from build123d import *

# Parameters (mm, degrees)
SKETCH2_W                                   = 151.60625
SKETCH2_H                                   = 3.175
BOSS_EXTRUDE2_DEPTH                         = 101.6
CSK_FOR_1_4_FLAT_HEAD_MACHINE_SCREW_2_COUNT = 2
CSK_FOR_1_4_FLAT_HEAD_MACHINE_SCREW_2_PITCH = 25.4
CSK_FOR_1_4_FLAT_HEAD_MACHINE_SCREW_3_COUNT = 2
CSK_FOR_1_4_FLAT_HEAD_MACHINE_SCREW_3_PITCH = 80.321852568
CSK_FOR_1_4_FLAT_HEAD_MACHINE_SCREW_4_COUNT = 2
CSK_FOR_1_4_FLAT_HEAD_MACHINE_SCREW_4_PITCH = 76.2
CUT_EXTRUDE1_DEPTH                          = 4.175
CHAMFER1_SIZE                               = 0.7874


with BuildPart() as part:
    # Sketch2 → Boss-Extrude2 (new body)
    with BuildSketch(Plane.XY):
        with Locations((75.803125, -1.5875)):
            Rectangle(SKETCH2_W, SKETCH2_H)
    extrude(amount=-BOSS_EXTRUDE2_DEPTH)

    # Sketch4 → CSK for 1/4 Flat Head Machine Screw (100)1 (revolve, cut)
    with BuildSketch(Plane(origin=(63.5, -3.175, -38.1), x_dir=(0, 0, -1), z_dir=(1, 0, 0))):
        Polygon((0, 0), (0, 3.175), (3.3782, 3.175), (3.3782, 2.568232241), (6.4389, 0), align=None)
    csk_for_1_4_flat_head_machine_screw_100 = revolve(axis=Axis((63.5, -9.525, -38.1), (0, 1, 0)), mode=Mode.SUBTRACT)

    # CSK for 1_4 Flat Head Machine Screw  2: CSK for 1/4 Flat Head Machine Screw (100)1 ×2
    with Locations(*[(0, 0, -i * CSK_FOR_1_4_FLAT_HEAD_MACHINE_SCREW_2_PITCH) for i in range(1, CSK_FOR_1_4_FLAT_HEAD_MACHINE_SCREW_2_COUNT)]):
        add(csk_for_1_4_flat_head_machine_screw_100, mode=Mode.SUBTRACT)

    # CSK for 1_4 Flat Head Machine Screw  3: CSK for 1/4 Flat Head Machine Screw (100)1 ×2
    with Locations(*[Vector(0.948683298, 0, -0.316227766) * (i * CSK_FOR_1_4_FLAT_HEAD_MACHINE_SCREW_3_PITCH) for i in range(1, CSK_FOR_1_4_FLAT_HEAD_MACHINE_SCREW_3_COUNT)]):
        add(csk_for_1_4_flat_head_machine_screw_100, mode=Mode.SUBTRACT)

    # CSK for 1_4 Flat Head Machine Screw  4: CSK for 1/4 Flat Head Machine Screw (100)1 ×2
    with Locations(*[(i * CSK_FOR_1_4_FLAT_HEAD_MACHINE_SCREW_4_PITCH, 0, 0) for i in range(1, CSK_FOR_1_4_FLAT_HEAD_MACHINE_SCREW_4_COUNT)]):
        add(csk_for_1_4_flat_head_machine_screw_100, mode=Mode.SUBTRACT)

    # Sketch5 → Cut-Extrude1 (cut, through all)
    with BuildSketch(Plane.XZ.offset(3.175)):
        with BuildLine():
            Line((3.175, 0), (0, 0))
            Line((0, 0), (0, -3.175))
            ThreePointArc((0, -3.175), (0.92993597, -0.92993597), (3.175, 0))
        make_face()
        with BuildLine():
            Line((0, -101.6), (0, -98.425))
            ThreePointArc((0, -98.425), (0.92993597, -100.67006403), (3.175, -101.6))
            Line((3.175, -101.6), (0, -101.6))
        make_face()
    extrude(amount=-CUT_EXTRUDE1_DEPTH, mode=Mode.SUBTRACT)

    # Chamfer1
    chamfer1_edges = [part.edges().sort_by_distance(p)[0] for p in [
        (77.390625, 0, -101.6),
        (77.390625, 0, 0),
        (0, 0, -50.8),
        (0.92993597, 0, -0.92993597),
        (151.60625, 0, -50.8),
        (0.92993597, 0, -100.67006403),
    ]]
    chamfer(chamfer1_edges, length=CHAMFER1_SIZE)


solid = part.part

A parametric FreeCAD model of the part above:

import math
import FreeCAD as App
import Part
import Sketcher
Q = App.Units.Quantity


def edges_at(feature, points):
    """Names of the edges that pass closest to the given points."""
    edges = feature.Shape.Edges
    near = lambda p: min(range(len(edges)), key=lambda i: edges[i].distToShape(Part.Vertex(*p))[0])
    return sorted({f"Edge{near(p) + 1}" for p in points})

doc = App.newDocument("Part")
params = doc.addObject("Spreadsheet::Sheet", "Params")
for row, (alias, value) in enumerate([
    ("sketch1_width", "5.96875 in"),
    ("sketch1_height", "0.125 in"),
    ("pad1_length", "4 in"),
    ("sketch2_width", "0.125 in"),
    ("sketch2_height", "0.133 in"),
    ("groove_angle", "360 deg"),
    ("linearpattern_pitch", "1 in"),
    ("linearpattern2_pitch", "80.321853 mm"),
    ("linearpattern3_pitch", "3 in"),
    ("sketch3_radius", "0.125 in"),
    ("chamfer_size", "0.031 in"),
], start=1):
    params.set(f"A{row}", alias)
    params.set(f"B{row}", "=" + value)
    params.setAlias(f"B{row}", alias)

body = doc.addObject("PartDesign::Body", "Body")

sketch1 = doc.addObject("Sketcher::SketchObject", "Sketch")
body.addObject(sketch1)
sketch1.AttachmentSupport = (doc.XY_Plane, [""])
sketch1.MapMode = "FlatFace"
sketch1.addGeometry([
    Part.LineSegment(App.Vector(0, 0, 0), App.Vector(0, -3.2, 0)),
    Part.LineSegment(App.Vector(0, -3.2, 0), App.Vector(151.6, -3.2, 0)),
    Part.LineSegment(App.Vector(151.6, -3.2, 0), App.Vector(151.6, 0, 0)),
    Part.LineSegment(App.Vector(151.6, 0, 0), App.Vector(0, 0, 0)),
], False)
sketch1.addConstraint([
    Sketcher.Constraint("Coincident", 0, 2, 1, 1),
    Sketcher.Constraint("Coincident", 1, 2, 2, 1),
    Sketcher.Constraint("Coincident", 2, 2, 3, 1),
    Sketcher.Constraint("Coincident", 3, 2, 0, 1),
    Sketcher.Constraint("Vertical", 0),
    Sketcher.Constraint("Horizontal", 1),
    Sketcher.Constraint("Vertical", 2),
    Sketcher.Constraint("Horizontal", 3),
    Sketcher.Constraint("Coincident", 3, 2, -1, 1),
    Sketcher.Constraint("DistanceX", 1, 1, 1, 2, Q("5.96875 in")),
    Sketcher.Constraint("DistanceY", 0, 2, 0, 1, Q("0.125 in")),
])
sketch1.setExpression("Constraints[9]", "Params.sketch1_width")
sketch1.setExpression("Constraints[10]", "Params.sketch1_height")
pad1 = doc.addObject("PartDesign::Pad", "Pad")
body.addObject(pad1)
pad1.Profile = sketch1
pad1.setExpression("Length", "Params.pad1_length")
pad1.Reversed = True

sketch2 = doc.addObject("Sketcher::SketchObject", "Sketch001")
body.addObject(sketch2)
sketch2.AttachmentSupport = (doc.YZ_Plane, [""])
sketch2.MapMode = "FlatFace"
sketch2.AttachmentOffset = App.Placement(App.Vector(0, 0, 2.5 * 25.4), App.Rotation())
sketch2.addGeometry([
    Part.LineSegment(App.Vector(0, -38.1, 0), App.Vector(-3.2, -38.1, 0)),
    Part.LineSegment(App.Vector(-3.2, -38.1, 0), App.Vector(-3.2, -44.5, 0)),
    Part.LineSegment(App.Vector(-3.2, -44.5, 0), App.Vector(-0.6, -41.5, 0)),
    Part.LineSegment(App.Vector(-0.6, -41.5, 0), App.Vector(0, -41.5, 0)),
    Part.LineSegment(App.Vector(0, -41.5, 0), App.Vector(0, -38.1, 0)),
], False)
sketch2.addGeometry(Part.LineSegment(App.Vector(-3.2, -38.1, 0), App.Vector(0, -38.1, 0)), True)
sketch2.addConstraint([
    Sketcher.Constraint("Coincident", 0, 2, 1, 1),
    Sketcher.Constraint("Coincident", 1, 2, 2, 1),
    Sketcher.Constraint("Coincident", 2, 2, 3, 1),
    Sketcher.Constraint("Coincident", 3, 2, 4, 1),
    Sketcher.Constraint("Coincident", 4, 2, 0, 1),
    Sketcher.Constraint("Horizontal", 0),
    Sketcher.Constraint("Vertical", 1),
    Sketcher.Constraint("Horizontal", 3),
    Sketcher.Constraint("Vertical", 4),
    Sketcher.Constraint("Horizontal", 5),
    Sketcher.Constraint("Coincident", 5, 1, 0, 2),
    Sketcher.Constraint("PointOnObject", 3, 2, -2),
    Sketcher.Constraint("PointOnObject", 5, 2, -2),
    Sketcher.Constraint("Angle", 2, Q("50 deg")),
    Sketcher.Constraint("DistanceY", 0, 2, -1, 1, Q("1.5 in")),
    Sketcher.Constraint("DistanceX", 0, 2, 0, 1, Q("0.125 in")),
    Sketcher.Constraint("DistanceY", 4, 1, 4, 2, Q("0.133 in")),
    Sketcher.Constraint("DistanceY", 1, 2, 1, 1, Q("0.2535 in")),
])
sketch2.setExpression("Constraints[15]", "Params.sketch2_width")
sketch2.setExpression("Constraints[16]", "Params.sketch2_height")
groove = doc.addObject("PartDesign::Groove", "Groove")
body.addObject(groove)
groove.Profile = sketch2
groove.ReferenceAxis = (sketch2, ["Axis0"])
groove.setExpression("Angle", "Params.groove_angle")
doc.recompute()

linearpattern = doc.addObject("PartDesign::LinearPattern", "LinearPattern")
body.addObject(linearpattern)
linearpattern.Originals = [groove]
linearpattern.Direction = (doc.Z_Axis, [""])
linearpattern.Mode = "offset"
linearpattern.setExpression("Offset", "Params.linearpattern_pitch")
linearpattern.Occurrences = 2
linearpattern.Reversed = True
body.Tip = linearpattern
doc.recompute()

datumline = doc.addObject("PartDesign::Line", "DatumLine")
body.addObject(datumline)
datumline.Placement = App.Placement(App.Vector(0, 0, 0), App.Rotation(App.Vector(0, 0, 1), App.Vector(0.948683298, 0, -0.316227766)))
linearpattern2 = doc.addObject("PartDesign::LinearPattern", "LinearPattern001")
body.addObject(linearpattern2)
linearpattern2.Originals = [groove]
linearpattern2.Direction = (datumline, [""])
linearpattern2.Mode = "offset"
linearpattern2.setExpression("Offset", "Params.linearpattern2_pitch")
linearpattern2.Occurrences = 2
body.Tip = linearpattern2
doc.recompute()

linearpattern3 = doc.addObject("PartDesign::LinearPattern", "LinearPattern002")
body.addObject(linearpattern3)
linearpattern3.Originals = [groove]
linearpattern3.Direction = (doc.X_Axis, [""])
linearpattern3.Mode = "offset"
linearpattern3.setExpression("Offset", "Params.linearpattern3_pitch")
linearpattern3.Occurrences = 2
body.Tip = linearpattern3

sketch3 = doc.addObject("Sketcher::SketchObject", "Sketch002")
body.addObject(sketch3)
sketch3.AttachmentSupport = (doc.XZ_Plane, [""])
sketch3.MapMode = "FlatFace"
sketch3.AttachmentOffset = App.Placement(App.Vector(0, 0, 0.125 * 25.4), App.Rotation())
sketch3.addGeometry([
    Part.LineSegment(App.Vector(3.2, 0, 0), App.Vector(0, 0, 0)),
    Part.LineSegment(App.Vector(0, 0, 0), App.Vector(0, -3.2, 0)),
    Part.ArcOfCircle(Part.Circle(App.Vector(3.2, -3.2, 0), App.Vector(0, 0, 1), 3.2), math.radians(90), math.radians(180)),
    Part.LineSegment(App.Vector(0, -98.4, 0), App.Vector(0, -101.6, 0)),
    Part.LineSegment(App.Vector(0, -101.6, 0), App.Vector(3.2, -101.6, 0)),
    Part.ArcOfCircle(Part.Circle(App.Vector(3.2, -98.4, 0), App.Vector(0, 0, 1), 3.2), math.radians(-180), math.radians(-90)),
], False)
sketch3.addConstraint([
    Sketcher.Constraint("Coincident", 0, 2, 1, 1),
    Sketcher.Constraint("Tangent", 1, 2, 2, 2),
    Sketcher.Constraint("Tangent", 2, 1, 0, 1),
    Sketcher.Constraint("Coincident", 3, 2, 4, 1),
    Sketcher.Constraint("Tangent", 4, 2, 5, 2),
    Sketcher.Constraint("Tangent", 5, 1, 3, 1),
    Sketcher.Constraint("Horizontal", 0),
    Sketcher.Constraint("Vertical", 1),
    Sketcher.Constraint("Vertical", 3),
    Sketcher.Constraint("Horizontal", 4),
    Sketcher.Constraint("Coincident", 0, 2, -1, 1),
    Sketcher.Constraint("Equal", 2, 5),
    Sketcher.Constraint("PointOnObject", 3, 2, -2),
    Sketcher.Constraint("DistanceY", 3, 2, -1, 1, Q("4 in")),
    Sketcher.Constraint("Radius", 2, Q("0.125 in")),
])
sketch3.setExpression("Constraints[14]", "Params.sketch3_radius")
pocket1 = doc.addObject("PartDesign::Pocket", "Pocket")
body.addObject(pocket1)
pocket1.Profile = sketch3
pocket1.Type = "ThroughAll"
doc.recompute()

chamfer = doc.addObject("PartDesign::Chamfer", "Chamfer")
body.addObject(chamfer)
chamfer.Base = (pocket1, edges_at(pocket1, [
    (77.391, 0, -101.6),
    (77.391, 0, 0),
    (0, 0, -50.8),
    (0.93, 0, -0.93),
    (151.606, 0, -50.8),
    (0.93, 0, -100.67),
]))
chamfer.setExpression("Size", "Params.chamfer_size")

doc.recompute()
